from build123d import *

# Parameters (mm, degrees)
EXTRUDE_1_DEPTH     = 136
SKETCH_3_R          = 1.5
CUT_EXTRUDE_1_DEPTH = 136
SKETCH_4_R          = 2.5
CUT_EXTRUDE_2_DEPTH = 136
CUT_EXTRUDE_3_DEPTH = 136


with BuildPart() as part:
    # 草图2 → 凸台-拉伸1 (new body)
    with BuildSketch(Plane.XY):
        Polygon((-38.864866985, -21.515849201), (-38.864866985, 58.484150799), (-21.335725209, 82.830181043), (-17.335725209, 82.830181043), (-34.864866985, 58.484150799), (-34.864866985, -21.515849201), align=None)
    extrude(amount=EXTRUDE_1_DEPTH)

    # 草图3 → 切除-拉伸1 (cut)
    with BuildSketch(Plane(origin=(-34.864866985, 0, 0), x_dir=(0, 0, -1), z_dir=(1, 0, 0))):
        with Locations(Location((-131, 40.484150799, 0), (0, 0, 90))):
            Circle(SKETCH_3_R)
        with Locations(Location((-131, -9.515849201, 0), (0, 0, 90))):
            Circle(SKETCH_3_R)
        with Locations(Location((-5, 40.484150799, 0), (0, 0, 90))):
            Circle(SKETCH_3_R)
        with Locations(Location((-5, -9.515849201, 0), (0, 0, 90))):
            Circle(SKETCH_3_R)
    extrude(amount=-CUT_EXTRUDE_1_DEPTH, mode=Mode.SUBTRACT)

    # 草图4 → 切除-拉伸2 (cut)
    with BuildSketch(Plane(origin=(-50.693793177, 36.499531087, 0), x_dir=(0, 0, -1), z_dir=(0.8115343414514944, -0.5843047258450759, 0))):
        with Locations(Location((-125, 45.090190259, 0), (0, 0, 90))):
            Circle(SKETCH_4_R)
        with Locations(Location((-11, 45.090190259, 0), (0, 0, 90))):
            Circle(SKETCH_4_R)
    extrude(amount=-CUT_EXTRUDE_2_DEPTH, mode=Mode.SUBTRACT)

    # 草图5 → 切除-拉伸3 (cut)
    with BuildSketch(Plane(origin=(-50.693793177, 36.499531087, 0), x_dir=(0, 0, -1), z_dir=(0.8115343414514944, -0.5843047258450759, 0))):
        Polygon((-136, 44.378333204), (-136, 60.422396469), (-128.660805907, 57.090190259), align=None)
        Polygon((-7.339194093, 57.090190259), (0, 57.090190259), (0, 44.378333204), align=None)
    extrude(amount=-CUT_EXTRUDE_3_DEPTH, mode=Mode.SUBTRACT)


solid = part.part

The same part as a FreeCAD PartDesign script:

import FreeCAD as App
import Part
import Sketcher

V = App.Vector
Q = App.Units.Quantity


def add_polygon(sketch, points):
    """Adds a closed chain of lines whose ends are joined by coincident constraints."""
    first, n = sketch.GeometryCount, len(points)
    for a, b in zip(points, points[1:] + points[:1]):
        sketch.addGeometry(Part.LineSegment(App.Vector(*a, 0), App.Vector(*b, 0)), False)
    for i in range(n):
        sketch.addConstraint(Sketcher.Constraint("Coincident", first + i, 2, first + (i + 1) % n, 1))

doc = App.newDocument("Part")
body = doc.addObject("PartDesign::Body", "Body")

sketch1 = body.newObject("Sketcher::SketchObject", "Sketch")
sketch1.AttachmentSupport = (doc.getObject("XY_Plane"), [""])
sketch1.MapMode = "FlatFace"
add_polygon(sketch1, [(-38.9, 58.5), (-38.9, -21.5), (-34.9, -21.5), (-34.9, 58.5), (-17.3, 82.8), (-21.3, 82.8)])
sketch1.addConstraint([
    Sketcher.Constraint("Vertical", 0),
    Sketcher.Constraint("Horizontal", 1),
    Sketcher.Constraint("Vertical", 2),
    Sketcher.Constraint("Horizontal", 4),
    Sketcher.Constraint("Parallel", 3, 5),
    Sketcher.Constraint("Horizontal", 2, 2, 5, 2),
    Sketcher.Constraint("DistanceX", 1, 1, 1, 2, Q("4 mm")),
    Sketcher.Constraint("DistanceY", 0, 2, 0, 1, Q("80 mm")),
    Sketcher.Constraint("Distance", 3, Q("30 mm")),
    Sketcher.Constraint("DistanceY", 0, 2, -1, 1, Q("21.515849 mm")),
    Sketcher.Constraint("DistanceY", -1, 1, 3, 2, Q("82.830181 mm")),
    Sketcher.Constraint("DistanceX", 0, 2, -1, 1, Q("38.864867 mm")),
])
pad1 = body.newObject("PartDesign::Pad", "Pad")
pad1.Profile = sketch1
pad1.Length = 136

sketch2 = body.newObject("Sketcher::SketchObject", "Sketch001")
sketch2.AttachmentSupport = (doc.getObject("YZ_Plane"), [""])
sketch2.MapMode = "FlatFace"
sketch2.AttachmentOffset = App.Placement(V(0, 0, -34.864867), App.Rotation())
sketch2.addGeometry([
    Part.Circle(V(40.5, 131, 0), V(0, 0, 1), 1.5),
    Part.Circle(V(-9.5, 131, 0), V(0, 0, 1), 1.5),
    Part.Circle(V(40.5, 5, 0), V(0, 0, 1), 1.5),
    Part.Circle(V(-9.5, 5, 0), V(0, 0, 1), 1.5),
], False)
sketch2.addConstraint([
    Sketcher.Constraint("Equal", 0, 1),
    Sketcher.Constraint("Equal", 1, 2),
    Sketcher.Constraint("Equal", 2, 3),
    Sketcher.Constraint("Horizontal", 0, 3, 1, 3),
    Sketcher.Constraint("Horizontal", 2, 3, 3, 3),
    Sketcher.Constraint("Vertical", 0, 3, 2, 3),
    Sketcher.Constraint("Vertical", 1, 3, 3, 3),
    Sketcher.Constraint("Diameter", 0, Q("3 mm")),
    Sketcher.Constraint("DistanceY", -1, 1, 0, 3, Q("131 mm")),
    Sketcher.Constraint("DistanceY", -1, 1, 2, 3, Q("5 mm")),
    Sketcher.Constraint("DistanceX", 1, 3, 0, 3, Q("50 mm")),
    Sketcher.Constraint("DistanceX", -1, 1, 0, 3, Q("40.484151 mm")),
])
pocket1 = body.newObject("PartDesign::Pocket", "Pocket")
pocket1.Profile = sketch2
pocket1.Length = 136

sketch3 = body.newObject("Sketcher::SketchObject", "Sketch002")
sketch3.Placement = App.Placement(V(-50.693793, 36.499531, 0), App.Rotation(V(0, 0, -1), V(0.584304726, 0.811534341, 0), V(0.811534341, -0.584304726, 0), "ZXY"))
sketch3.addGeometry([
    Part.Circle(V(-125, 45.1, 0), V(0, 0, 1), 2.5),
    Part.Circle(V(-11, 45.1, 0), V(0, 0, 1), 2.5),
], False)
sketch3.addConstraint([
    Sketcher.Constraint("Equal", 0, 1),
    Sketcher.Constraint("Horizontal", 0, 3, 1, 3),
    Sketcher.Constraint("Diameter", 0, Q("5 mm")),
    Sketcher.Constraint("DistanceX", 0, 3, -1, 1, Q("125 mm")),
    Sketcher.Constraint("DistanceX", 1, 3, -1, 1, Q("11 mm")),
    Sketcher.Constraint("DistanceY", -1, 1, 0, 3, Q("45.09019 mm")),
])
pocket2 = body.newObject("PartDesign::Pocket", "Pocket001")
pocket2.Profile = sketch3
pocket2.Length = 136

sketch4 = body.newObject("Sketcher::SketchObject", "Sketch003")
sketch4.Placement = App.Placement(V(-50.693793, 36.499531, 0), App.Rotation(V(0, 0, -1), V(0.584304726, 0.811534341, 0), V(0.811534341, -0.584304726, 0), "ZXY"))
add_polygon(sketch4, [(-136, 60), (-136, 44), (-129, 57)])
add_polygon(sketch4, [(0, 57), (-7, 57), (0, 44)])
sketch4.addConstraint([
    Sketcher.Constraint("Vertical", 0),
    Sketcher.Constraint("Horizontal", 3),
    Sketcher.Constraint("Vertical", 5),
    Sketcher.Constraint("PointOnObject", 4, 2, -2),
    Sketcher.Constraint("Horizontal", 1, 2, 3, 2),
    Sketcher.Constraint("Horizontal", 0, 2, 4, 2),
    Sketcher.Constraint("Equal", 1, 4),
    Sketcher.Constraint("Angle", 1, Q("60 deg")),
    Sketcher.Constraint("DistanceX", 0, 2, -1, 1, Q("136 mm")),
    Sketcher.Constraint("Distance", 1, Q("14.678388 mm")),
    Sketcher.Constraint("DistanceY", 0, 2, 0, 1, Q("16.044063 mm")),
    Sketcher.Constraint("DistanceY", -1, 1, 1, 2, Q("57.09019 mm")),
])
pocket3 = body.newObject("PartDesign::Pocket", "Pocket002")
pocket3.Profile = sketch4
pocket3.Length = 136

doc.recompute()
